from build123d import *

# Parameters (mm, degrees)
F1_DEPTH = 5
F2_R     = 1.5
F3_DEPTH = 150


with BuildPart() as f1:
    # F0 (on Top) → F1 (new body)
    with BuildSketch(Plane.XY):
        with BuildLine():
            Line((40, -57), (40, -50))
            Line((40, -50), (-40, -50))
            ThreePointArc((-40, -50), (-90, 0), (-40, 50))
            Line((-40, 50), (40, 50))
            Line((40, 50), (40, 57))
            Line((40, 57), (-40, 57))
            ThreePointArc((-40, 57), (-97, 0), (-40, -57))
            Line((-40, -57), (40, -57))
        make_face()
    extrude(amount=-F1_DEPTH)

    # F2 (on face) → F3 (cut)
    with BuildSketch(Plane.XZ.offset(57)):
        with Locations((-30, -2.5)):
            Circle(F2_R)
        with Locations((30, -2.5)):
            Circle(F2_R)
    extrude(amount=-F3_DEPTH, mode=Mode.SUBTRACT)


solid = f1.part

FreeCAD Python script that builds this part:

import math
import FreeCAD as App
import Part
import Sketcher

V = App.Vector
Q = App.Units.Quantity

doc = App.newDocument("Part")
body = doc.addObject("PartDesign::Body", "Body")

sketch1 = body.newObject("Sketcher::SketchObject", "Sketch")
sketch1.AttachmentSupport = (doc.getObject("XY_Plane"), [""])
sketch1.MapMode = "FlatFace"
sketch1.addGeometry([
    Part.LineSegment(V(40, -57, 0), V(40, -50, 0)),
    Part.LineSegment(V(40, -50, 0), V(-40, -50, 0)),
    Part.ArcOfCircle(Part.Circle(V(-40, 0, 0), V(0, 0, 1), 50), math.radians(90), math.radians(270)),
    Part.LineSegment(V(-40, 50, 0), V(40, 50, 0)),
    Part.LineSegment(V(40, 50, 0), V(40, 57, 0)),
    Part.LineSegment(V(40, 57, 0), V(-40, 57, 0)),
    Part.ArcOfCircle(Part.Circle(V(-40, 0, 0), V(0, 0, 1), 57), math.radians(90), math.radians(270)),
    Part.LineSegment(V(-40, -57, 0), V(40, -57, 0)),
], False)
sketch1.addConstraint([
    Sketcher.Constraint("Coincident", 0, 2, 1, 1),
    Sketcher.Constraint("Tangent", 1, 2, 2, 2),
    Sketcher.Constraint("Tangent", 2, 1, 3, 1),
    Sketcher.Constraint("Coincident", 3, 2, 4, 1),
    Sketcher.Constraint("Coincident", 4, 2, 5, 1),
    Sketcher.Constraint("Tangent", 5, 2, 6, 1),
    Sketcher.Constraint("Tangent", 6, 2, 7, 1),
    Sketcher.Constraint("Coincident", 7, 2, 0, 1),
    Sketcher.Constraint("Vertical", 0),
    Sketcher.Constraint("Horizontal", 1),
    Sketcher.Constraint("Horizontal", 3),
    Sketcher.Constraint("Vertical", 4),
    Sketcher.Constraint("Horizontal", 5),
    Sketcher.Constraint("Horizontal", 7),
    Sketcher.Constraint("Coincident", 6, 3, 2, 3),
    Sketcher.Constraint("Symmetric", 0, 2, 2, 1, -1, 1),
    Sketcher.Constraint("Vertical", 0, 2, 3, 2),
    Sketcher.Constraint("Radius", 2, Q("50 mm")),
    Sketcher.Constraint("Radius", 6, Q("57 mm")),
    Sketcher.Constraint("DistanceX", 1, 2, 1, 1, Q("80 mm")),
])
pad1 = body.newObject("PartDesign::Pad", "Pad")
pad1.Profile = sketch1
pad1.Length = 5
pad1.Reversed = True

sketch2 = body.newObject("Sketcher::SketchObject", "Sketch001")
sketch2.AttachmentSupport = (doc.getObject("XZ_Plane"), [""])
sketch2.MapMode = "FlatFace"
sketch2.AttachmentOffset = App.Placement(V(0, 0, 57), App.Rotation())
sketch2.addGeometry([
    Part.Circle(V(-30, -2.5, 0), V(0, 0, 1), 1.5),
    Part.Circle(V(30, -2.5, 0), V(0, 0, 1), 1.5),
], False)
sketch2.addConstraint([
    Sketcher.Constraint("Equal", 0, 1),
    Sketcher.Constraint("Symmetric", 0, 3, 1, 3, -2),
    Sketcher.Constraint("Diameter", 0, Q("3 mm")),
    Sketcher.Constraint("DistanceX", 0, 3, -1, 1, Q("30 mm")),
    Sketcher.Constraint("DistanceY", 0, 3, -1, 1, Q("2.5 mm")),
])
pocket1 = body.newObject("PartDesign::Pocket", "Pocket")
pocket1.Profile = sketch2
pocket1.Length = 150

doc.recompute()
